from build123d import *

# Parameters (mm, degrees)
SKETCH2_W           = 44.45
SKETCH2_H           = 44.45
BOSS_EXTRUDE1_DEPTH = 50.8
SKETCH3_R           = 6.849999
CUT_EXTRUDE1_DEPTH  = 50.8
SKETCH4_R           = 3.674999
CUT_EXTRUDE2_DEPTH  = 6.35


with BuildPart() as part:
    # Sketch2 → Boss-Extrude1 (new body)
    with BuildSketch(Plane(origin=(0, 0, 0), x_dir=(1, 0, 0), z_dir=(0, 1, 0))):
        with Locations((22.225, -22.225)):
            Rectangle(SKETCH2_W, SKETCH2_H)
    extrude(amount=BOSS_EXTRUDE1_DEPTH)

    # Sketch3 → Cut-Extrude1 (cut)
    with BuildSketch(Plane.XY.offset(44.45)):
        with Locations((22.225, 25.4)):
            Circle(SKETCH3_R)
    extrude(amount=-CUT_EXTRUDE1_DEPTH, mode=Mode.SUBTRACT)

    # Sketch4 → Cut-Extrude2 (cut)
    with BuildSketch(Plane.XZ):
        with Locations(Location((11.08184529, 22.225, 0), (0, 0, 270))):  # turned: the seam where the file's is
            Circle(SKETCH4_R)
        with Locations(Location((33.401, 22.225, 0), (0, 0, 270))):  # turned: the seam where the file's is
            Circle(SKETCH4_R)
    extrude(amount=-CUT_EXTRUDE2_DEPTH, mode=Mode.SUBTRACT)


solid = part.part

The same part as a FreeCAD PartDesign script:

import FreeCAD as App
import Part
import Sketcher

V = App.Vector
Q = App.Units.Quantity


def add_polygon(sketch, points):
    """Adds a closed chain of lines whose ends are joined by coincident constraints."""
    first, n = sketch.GeometryCount, len(points)
    for a, b in zip(points, points[1:] + points[:1]):
        sketch.addGeometry(Part.LineSegment(App.Vector(*a, 0), App.Vector(*b, 0)), False)
    for i in range(n):
        sketch.addConstraint(Sketcher.Constraint("Coincident", first + i, 2, first + (i + 1) % n, 1))

doc = App.newDocument("Part")
params = doc.addObject("Spreadsheet::Sheet", "Params")
for row, (alias, value) in enumerate([
    ("sketch1_width", "1.75 in"),
    ("pad1_length", "2 in"),
    ("pocket1_length", "2 in"),
    ("pocket2_length", "0.25 in"),
], start=1):
    params.set(f"A{row}", alias)
    params.set(f"B{row}", "=" + value)
    params.setAlias(f"B{row}", alias)

body = doc.addObject("PartDesign::Body", "Body")

sketch1 = body.newObject("Sketcher::SketchObject", "Sketch")
sketch1.AttachmentSupport = (doc.getObject("XZ_Plane"), [""])
sketch1.MapMode = "FlatFace"
add_polygon(sketch1, [(0, 0), (0, 44), (44, 44), (44, 0)])
sketch1.addConstraint([
    Sketcher.Constraint("Vertical", 0),
    Sketcher.Constraint("Horizontal", 1),
    Sketcher.Constraint("Vertical", 2),
    Sketcher.Constraint("Horizontal", 3),
    Sketcher.Constraint("Coincident", 3, 2, -1, 1),
    Sketcher.Constraint("Equal", 3, 0),
    Sketcher.Constraint("DistanceX", 1, 1, 1, 2, Q("1.75 in")),
])
sketch1.setExpression("Constraints[10]", "Params.sketch1_width")
pad1 = body.newObject("PartDesign::Pad", "Pad")
pad1.Profile = sketch1
pad1.setExpression("Length", "Params.pad1_length")
pad1.Reversed = True

sketch2 = body.newObject("Sketcher::SketchObject", "Sketch001")
sketch2.AttachmentSupport = (doc.getObject("XY_Plane"), [""])
sketch2.MapMode = "FlatFace"
sketch2.AttachmentOffset = App.Placement(V(0, 0, 1.75 * 25.4), App.Rotation())
sketch2.addGeometry(Part.Circle(V(22, 25, 0), V(0, 0, 1), 7), False)
sketch2.addConstraint([
    Sketcher.Constraint("DistanceY", -1, 1, 0, 3, Q("1 in")),
    Sketcher.Constraint("Diameter", 0, Q("13.699998 mm")),
    Sketcher.Constraint("DistanceX", -1, 1, 0, 3, Q("0.875 in")),
])
pocket1 = body.newObject("PartDesign::Pocket", "Pocket")
pocket1.Profile = sketch2
pocket1.setExpression("Length", "Params.pocket1_length")

sketch3 = body.newObject("Sketcher::SketchObject", "Sketch002")
sketch3.AttachmentSupport = (doc.getObject("XZ_Plane"), [""])
sketch3.MapMode = "FlatFace"
sketch3.addGeometry([
    Part.Circle(V(11.1, 22.2, 0), V(0, 0, 1), 3.7),
    Part.Circle(V(33.4, 22.2, 0), V(0, 0, 1), 3.7),
], False)
sketch3.addConstraint([
    Sketcher.Constraint("Equal", 0, 1),
    Sketcher.Constraint("Horizontal", 0, 3, 1, 3),
    Sketcher.Constraint("Diameter", 0, Q("7.349998 mm")),
    Sketcher.Constraint("DistanceY", -1, 1, 0, 3, Q("0.875 in")),
    Sketcher.Constraint("DistanceX", -1, 1, 1, 3, Q("1.315 in")),
    Sketcher.Constraint("DistanceX", -1, 1, 0, 3, Q("11.081845 mm")),
])
pocket2 = body.newObject("PartDesign::Pocket", "Pocket001")
pocket2.Profile = sketch3
pocket2.setExpression("Length", "Params.pocket2_length")

doc.recompute()
